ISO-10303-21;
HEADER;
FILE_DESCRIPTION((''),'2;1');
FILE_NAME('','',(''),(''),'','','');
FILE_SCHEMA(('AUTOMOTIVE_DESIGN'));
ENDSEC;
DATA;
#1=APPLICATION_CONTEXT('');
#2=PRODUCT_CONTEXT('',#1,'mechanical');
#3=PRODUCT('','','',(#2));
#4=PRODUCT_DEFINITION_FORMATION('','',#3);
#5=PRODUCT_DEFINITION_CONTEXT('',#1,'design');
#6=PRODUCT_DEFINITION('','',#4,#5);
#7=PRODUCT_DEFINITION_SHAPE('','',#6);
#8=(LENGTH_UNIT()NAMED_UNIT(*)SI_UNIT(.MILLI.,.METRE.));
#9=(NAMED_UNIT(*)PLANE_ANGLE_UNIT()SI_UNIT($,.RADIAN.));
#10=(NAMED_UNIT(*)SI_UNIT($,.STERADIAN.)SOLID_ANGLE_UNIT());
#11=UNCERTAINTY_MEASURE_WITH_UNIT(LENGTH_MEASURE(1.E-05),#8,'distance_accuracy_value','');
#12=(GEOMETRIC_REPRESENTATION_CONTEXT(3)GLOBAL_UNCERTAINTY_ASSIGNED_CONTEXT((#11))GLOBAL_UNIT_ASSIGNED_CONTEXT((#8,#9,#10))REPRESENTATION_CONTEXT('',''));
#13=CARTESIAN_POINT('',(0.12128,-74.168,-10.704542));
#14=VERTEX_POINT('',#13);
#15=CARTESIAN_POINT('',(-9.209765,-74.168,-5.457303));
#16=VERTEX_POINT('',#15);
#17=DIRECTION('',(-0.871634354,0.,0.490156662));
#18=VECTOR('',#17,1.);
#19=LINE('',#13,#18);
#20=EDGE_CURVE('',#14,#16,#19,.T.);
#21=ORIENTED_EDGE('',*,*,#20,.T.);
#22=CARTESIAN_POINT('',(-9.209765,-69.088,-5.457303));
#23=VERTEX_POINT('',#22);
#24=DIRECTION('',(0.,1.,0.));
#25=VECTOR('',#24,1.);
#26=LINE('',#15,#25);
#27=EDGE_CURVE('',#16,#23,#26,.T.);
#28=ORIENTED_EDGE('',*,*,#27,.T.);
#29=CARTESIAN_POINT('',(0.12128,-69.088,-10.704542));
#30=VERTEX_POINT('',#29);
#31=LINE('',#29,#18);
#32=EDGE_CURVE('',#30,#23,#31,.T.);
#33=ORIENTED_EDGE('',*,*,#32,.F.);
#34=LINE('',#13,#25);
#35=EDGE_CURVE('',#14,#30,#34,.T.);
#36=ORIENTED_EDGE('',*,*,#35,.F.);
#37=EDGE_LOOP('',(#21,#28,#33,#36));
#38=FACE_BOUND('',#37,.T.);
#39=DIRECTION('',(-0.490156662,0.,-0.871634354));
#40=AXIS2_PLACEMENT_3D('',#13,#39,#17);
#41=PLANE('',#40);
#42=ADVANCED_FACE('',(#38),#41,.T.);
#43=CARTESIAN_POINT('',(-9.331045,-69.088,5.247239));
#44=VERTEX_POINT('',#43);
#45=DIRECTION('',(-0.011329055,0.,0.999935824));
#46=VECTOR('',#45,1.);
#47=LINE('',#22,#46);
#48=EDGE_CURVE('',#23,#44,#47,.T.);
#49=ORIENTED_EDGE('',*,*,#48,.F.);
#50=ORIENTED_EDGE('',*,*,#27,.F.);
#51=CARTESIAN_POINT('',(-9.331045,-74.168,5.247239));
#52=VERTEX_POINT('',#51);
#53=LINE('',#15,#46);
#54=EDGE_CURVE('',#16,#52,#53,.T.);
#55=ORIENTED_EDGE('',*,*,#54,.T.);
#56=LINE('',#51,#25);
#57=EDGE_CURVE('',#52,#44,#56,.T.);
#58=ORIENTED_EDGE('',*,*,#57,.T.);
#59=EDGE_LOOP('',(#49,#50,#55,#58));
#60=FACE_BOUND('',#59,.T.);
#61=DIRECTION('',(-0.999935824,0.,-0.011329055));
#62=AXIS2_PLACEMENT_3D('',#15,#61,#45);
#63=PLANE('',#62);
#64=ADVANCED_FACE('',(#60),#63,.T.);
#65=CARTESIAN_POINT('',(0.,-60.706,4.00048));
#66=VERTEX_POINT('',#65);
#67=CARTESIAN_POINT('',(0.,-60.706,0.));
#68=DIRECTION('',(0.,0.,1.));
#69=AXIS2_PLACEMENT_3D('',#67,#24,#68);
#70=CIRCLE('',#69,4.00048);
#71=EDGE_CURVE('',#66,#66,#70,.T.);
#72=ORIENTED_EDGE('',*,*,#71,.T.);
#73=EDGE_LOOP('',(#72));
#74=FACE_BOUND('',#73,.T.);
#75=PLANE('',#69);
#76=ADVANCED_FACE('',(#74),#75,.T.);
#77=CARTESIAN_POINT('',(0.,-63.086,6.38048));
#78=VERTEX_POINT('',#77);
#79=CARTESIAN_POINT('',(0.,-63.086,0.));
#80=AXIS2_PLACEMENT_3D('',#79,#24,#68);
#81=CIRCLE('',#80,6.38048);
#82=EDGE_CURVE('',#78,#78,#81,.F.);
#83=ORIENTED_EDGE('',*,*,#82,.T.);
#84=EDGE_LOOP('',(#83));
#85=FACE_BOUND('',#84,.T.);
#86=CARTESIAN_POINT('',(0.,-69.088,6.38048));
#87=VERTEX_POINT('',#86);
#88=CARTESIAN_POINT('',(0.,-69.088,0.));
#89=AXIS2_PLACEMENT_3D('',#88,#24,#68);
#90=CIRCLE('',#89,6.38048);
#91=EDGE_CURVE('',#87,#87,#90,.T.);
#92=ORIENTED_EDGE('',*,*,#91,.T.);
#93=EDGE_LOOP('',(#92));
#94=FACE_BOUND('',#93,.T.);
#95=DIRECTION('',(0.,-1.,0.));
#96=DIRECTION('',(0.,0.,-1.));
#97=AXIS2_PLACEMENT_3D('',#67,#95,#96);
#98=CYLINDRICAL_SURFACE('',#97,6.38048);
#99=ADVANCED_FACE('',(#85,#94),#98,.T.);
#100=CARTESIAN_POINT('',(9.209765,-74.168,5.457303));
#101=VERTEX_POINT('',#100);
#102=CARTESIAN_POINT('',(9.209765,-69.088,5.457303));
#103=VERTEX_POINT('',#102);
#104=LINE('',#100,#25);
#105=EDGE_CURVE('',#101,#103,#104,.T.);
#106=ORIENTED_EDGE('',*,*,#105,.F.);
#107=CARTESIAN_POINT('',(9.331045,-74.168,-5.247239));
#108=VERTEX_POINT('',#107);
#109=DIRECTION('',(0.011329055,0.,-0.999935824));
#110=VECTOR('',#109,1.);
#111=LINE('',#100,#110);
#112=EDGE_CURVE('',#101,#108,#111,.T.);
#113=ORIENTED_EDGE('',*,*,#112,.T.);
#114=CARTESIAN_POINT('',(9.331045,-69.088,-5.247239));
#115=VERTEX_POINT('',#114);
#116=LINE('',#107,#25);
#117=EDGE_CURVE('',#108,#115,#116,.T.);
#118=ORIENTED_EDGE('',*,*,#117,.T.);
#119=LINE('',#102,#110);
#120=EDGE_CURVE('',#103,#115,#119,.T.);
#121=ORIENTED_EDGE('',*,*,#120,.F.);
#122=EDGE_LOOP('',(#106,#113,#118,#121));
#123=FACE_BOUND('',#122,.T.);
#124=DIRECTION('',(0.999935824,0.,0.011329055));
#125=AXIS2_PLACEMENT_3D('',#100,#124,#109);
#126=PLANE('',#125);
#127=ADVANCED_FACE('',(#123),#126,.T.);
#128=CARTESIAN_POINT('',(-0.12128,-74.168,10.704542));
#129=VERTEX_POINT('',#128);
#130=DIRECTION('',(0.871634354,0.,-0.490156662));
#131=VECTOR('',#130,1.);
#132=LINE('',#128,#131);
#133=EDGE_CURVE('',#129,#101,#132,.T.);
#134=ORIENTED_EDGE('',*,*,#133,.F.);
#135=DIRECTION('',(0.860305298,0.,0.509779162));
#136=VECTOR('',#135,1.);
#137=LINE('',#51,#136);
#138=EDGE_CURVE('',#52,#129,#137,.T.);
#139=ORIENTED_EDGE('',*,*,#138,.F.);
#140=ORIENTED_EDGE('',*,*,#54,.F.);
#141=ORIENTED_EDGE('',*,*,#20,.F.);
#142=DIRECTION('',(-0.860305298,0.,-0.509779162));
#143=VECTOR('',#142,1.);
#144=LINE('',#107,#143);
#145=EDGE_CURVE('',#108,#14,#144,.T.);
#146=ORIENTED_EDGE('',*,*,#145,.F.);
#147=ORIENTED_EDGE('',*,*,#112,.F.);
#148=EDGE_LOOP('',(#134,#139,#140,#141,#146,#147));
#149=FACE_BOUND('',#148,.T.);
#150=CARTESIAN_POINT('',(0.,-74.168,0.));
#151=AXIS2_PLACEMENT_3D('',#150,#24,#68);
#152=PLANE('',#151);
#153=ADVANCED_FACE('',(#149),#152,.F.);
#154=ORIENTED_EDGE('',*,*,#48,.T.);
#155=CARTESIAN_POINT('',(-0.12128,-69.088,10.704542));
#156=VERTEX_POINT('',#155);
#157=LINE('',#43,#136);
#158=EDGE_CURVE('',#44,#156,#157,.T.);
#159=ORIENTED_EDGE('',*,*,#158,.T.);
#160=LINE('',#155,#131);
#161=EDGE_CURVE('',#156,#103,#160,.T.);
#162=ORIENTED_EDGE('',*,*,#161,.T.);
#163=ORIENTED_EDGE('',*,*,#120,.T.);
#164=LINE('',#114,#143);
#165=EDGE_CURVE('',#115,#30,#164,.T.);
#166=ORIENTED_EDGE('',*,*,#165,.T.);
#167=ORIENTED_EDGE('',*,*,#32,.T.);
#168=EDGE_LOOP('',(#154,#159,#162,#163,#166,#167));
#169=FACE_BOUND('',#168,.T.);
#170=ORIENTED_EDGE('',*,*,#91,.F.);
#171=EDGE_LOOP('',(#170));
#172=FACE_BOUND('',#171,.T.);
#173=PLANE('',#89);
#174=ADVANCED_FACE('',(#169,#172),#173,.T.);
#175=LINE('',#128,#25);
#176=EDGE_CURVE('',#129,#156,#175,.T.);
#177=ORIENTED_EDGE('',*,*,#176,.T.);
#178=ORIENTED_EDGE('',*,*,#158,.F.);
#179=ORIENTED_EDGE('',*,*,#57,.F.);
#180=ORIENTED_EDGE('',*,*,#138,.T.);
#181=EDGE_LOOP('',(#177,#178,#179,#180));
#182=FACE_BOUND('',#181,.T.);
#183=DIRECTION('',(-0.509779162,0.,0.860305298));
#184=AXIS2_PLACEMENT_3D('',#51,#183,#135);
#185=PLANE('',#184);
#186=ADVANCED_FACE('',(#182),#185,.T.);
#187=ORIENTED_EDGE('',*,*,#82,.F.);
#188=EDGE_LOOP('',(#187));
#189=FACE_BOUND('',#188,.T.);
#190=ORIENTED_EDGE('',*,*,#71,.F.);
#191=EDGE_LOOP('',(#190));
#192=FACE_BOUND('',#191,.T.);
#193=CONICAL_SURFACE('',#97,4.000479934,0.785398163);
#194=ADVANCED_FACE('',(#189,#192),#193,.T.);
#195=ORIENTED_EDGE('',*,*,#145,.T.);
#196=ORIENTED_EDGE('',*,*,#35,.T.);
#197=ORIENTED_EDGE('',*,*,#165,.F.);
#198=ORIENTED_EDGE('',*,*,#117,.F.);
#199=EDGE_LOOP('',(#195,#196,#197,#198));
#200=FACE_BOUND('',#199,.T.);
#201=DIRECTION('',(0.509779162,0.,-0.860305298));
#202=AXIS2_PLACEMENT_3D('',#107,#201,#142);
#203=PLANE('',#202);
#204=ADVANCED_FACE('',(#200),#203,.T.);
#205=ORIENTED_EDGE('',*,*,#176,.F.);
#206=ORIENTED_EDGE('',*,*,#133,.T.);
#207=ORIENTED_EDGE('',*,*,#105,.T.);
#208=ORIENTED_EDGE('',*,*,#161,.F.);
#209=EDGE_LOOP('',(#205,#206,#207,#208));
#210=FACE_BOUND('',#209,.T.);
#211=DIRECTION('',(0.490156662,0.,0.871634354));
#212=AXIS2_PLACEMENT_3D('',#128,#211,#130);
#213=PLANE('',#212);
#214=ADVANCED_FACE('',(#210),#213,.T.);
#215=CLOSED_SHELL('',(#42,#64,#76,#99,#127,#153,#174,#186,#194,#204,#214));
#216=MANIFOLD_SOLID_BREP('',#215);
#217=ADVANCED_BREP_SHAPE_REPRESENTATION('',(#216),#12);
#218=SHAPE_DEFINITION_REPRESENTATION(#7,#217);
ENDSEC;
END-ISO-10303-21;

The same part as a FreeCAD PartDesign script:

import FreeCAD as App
import Part
import Sketcher

V = App.Vector
Q = App.Units.Quantity


def edges_at(feature, points):
    """Names of the edges that pass closest to the given points."""
    edges = feature.Shape.Edges
    near = lambda p: min(range(len(edges)), key=lambda i: edges[i].distToShape(Part.Vertex(*p))[0])
    return sorted({f"Edge{near(p) + 1}" for p in points})


def add_polygon(sketch, points):
    """Adds a closed chain of lines whose ends are joined by coincident constraints."""
    first, n = sketch.GeometryCount, len(points)
    for a, b in zip(points, points[1:] + points[:1]):
        sketch.addGeometry(Part.LineSegment(App.Vector(*a, 0), App.Vector(*b, 0)), False)
    for i in range(n):
        sketch.addConstraint(Sketcher.Constraint("Coincident", first + i, 2, first + (i + 1) % n, 1))

doc = App.newDocument("Part")
body = doc.addObject("PartDesign::Body", "Body")

sketch1 = body.newObject("Sketcher::SketchObject", "Sketch")
sketch1.AttachmentSupport = (doc.getObject("XZ_Plane"), [""])
sketch1.MapMode = "FlatFace"
sketch1.AttachmentOffset = App.Placement(V(0, 0, 2.72 * 25.4), App.Rotation())
sketch1.addGeometry(Part.Circle(V(0, 0, 0), V(0, 0, 1), 6), False)
sketch1.addConstraint(Sketcher.Constraint("Coincident", 0, 3, -1, 1))
sketch1.addConstraint(Sketcher.Constraint("Diameter", 0, Q("0.5024 in")))
pad1 = body.newObject("PartDesign::Pad", "Pad")
pad1.Profile = sketch1
pad1.Length = Q("0.33 in")
pad1.Reversed = True

sketch2 = body.newObject("Sketcher::SketchObject", "Sketch001")
sketch2.AttachmentSupport = (doc.getObject("XZ_Plane"), [""])
sketch2.MapMode = "FlatFace"
sketch2.AttachmentOffset = App.Placement(V(0, 0, 2.72 * 25.4), App.Rotation())
add_polygon(sketch2, [(9, 5), (9, -5), (0, -11), (-9, -5), (-9, 5), (0, 11)])
sketch2.addConstraint(Sketcher.Constraint("Symmetric", 0, 2, 3, 2, -1, 1))
sketch2.addConstraint(Sketcher.Constraint("Symmetric", 1, 2, 4, 2, -1, 1))
sketch2.addConstraint(Sketcher.Constraint("Symmetric", 2, 2, 5, 2, -1, 1))
sketch2.addConstraint(Sketcher.Constraint("Equal", 0, 1))
sketch2.addConstraint(Sketcher.Constraint("Equal", 1, 2))
sketch2.addConstraint(Sketcher.Constraint("Distance", 0, 10.705229))
sketch2.addConstraint(Sketcher.Constraint("DistanceY", 0, 2, -1, 1, 5.247239))
sketch2.addConstraint(Sketcher.Constraint("DistanceX", -1, 1, 1, 2, 0.12128))
sketch2.addConstraint(Sketcher.Constraint("DistanceY", 1, 2, -1, 1, 10.704542))
pad2 = body.newObject("PartDesign::Pad", "Pad001")
pad2.Profile = sketch2
pad2.Length = Q("0.2 in")
doc.recompute()

chamfer = body.newObject("PartDesign::Chamfer", "Chamfer")
chamfer.Base = (pad2, edges_at(pad2, [(-6.38, -60.706, 0)]))
chamfer.Size = 2.38

doc.recompute()
